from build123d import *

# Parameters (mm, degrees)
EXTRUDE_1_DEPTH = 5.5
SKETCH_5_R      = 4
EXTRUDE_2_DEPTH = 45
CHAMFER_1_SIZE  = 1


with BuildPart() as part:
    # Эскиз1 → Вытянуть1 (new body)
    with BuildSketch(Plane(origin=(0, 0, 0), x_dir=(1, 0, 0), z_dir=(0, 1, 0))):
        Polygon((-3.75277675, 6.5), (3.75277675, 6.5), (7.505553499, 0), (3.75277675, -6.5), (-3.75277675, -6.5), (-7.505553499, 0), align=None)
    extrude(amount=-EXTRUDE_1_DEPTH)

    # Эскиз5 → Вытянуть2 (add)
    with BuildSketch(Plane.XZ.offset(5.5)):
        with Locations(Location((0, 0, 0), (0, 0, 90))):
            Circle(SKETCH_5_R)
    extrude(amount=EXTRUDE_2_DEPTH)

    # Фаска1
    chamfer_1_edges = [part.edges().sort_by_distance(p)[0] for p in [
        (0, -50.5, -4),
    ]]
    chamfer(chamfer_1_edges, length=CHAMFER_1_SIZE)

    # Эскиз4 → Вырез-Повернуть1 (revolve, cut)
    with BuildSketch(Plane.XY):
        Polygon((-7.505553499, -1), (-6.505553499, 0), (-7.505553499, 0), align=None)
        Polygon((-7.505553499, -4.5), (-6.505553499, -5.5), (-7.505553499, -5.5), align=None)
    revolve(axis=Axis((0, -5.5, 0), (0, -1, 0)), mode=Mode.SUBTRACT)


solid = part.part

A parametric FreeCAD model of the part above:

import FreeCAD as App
import Part
import Sketcher
from FreeCAD import Vector
Q = App.Units.Quantity


def edges_at(feature, points):
    """Names of the edges that pass closest to the given points."""
    edges = feature.Shape.Edges
    near = lambda p: min(range(len(edges)), key=lambda i: edges[i].distToShape(Part.Vertex(*p))[0])
    return sorted({f"Edge{near(p) + 1}" for p in points})


def add_polygon(sketch, points):
    """Adds a closed chain of lines whose ends are joined by coincident constraints."""
    first, n = sketch.GeometryCount, len(points)
    for a, b in zip(points, points[1:] + points[:1]):
        sketch.addGeometry(Part.LineSegment(App.Vector(*a, 0), App.Vector(*b, 0)), False)
    for i in range(n):
        sketch.addConstraint(Sketcher.Constraint("Coincident", first + i, 2, first + (i + 1) % n, 1))

doc = App.newDocument("Part")
body = doc.addObject("PartDesign::Body", "Body")

# Sketch on XZ plane
sketch1 = body.newObject("Sketcher::SketchObject", "Sketch")
sketch1.AttachmentSupport = (doc.getObject("XZ_Plane"), [""])
sketch1.MapMode = "FlatFace"
add_polygon(sketch1, [(3.752777, -6.5), (-3.752777, -6.5), (-7.505553, 0), (-3.752777, 6.5), (3.752777, 6.5), (7.505553, 0)])  # lines 0-5
sketch1.addConstraint(Sketcher.Constraint("Horizontal", 0))
sketch1.addConstraint(Sketcher.Constraint("Horizontal", 3))
sketch1.addConstraint(Sketcher.Constraint("Symmetric", 0, 2, 3, 2, -1, 1))
sketch1.addConstraint(Sketcher.Constraint("Symmetric", 1, 2, 4, 2, -1, 1))
sketch1.addConstraint(Sketcher.Constraint("PointOnObject", 1, 2, -1))
sketch1.addConstraint(Sketcher.Constraint("Parallel", 2, 5))
sketch1.addConstraint(Sketcher.Constraint("Vertical", 0, 2, 2, 2))
sketch1.addConstraint(Sketcher.Constraint("Angle", 1, Q("120 deg")))
sketch1.addConstraint(Sketcher.Constraint("DistanceY", 0, 2, 2, 2, 13.0))
sketch1.addConstraint(Sketcher.Constraint("DistanceX", 0, 2, 0, 1, 7.505554))
pad1 = body.newObject("PartDesign::Pad", "Pad")
pad1.Profile = sketch1
pad1.Length = 5.5

# Sketch on XZ plane
sketch2 = body.newObject("Sketcher::SketchObject", "Sketch001")
sketch2.AttachmentSupport = (doc.getObject("XZ_Plane"), [""])
sketch2.MapMode = "FlatFace"
sketch2.AttachmentOffset = App.Placement(Vector(0, 0, 5.5), App.Rotation())
sketch2.addGeometry(Part.Circle(Vector(0, 0, 0), Vector(0, 0, 1), 4), False)
sketch2.addConstraint(Sketcher.Constraint("Coincident", 0, 3, -1, 1))
sketch2.addConstraint(Sketcher.Constraint("Diameter", 0, 8.0))
pad2 = body.newObject("PartDesign::Pad", "Pad001")
pad2.Profile = sketch2
pad2.Length = 45
doc.recompute()

chamfer = body.newObject("PartDesign::Chamfer", "Chamfer")
chamfer.Base = (pad2, edges_at(pad2, [(0, -50.5, -4)]))
chamfer.Size = 1

# Sketch on XY plane
sketch3 = body.newObject("Sketcher::SketchObject", "Sketch002")
sketch3.AttachmentSupport = (doc.getObject("XY_Plane"), [""])
sketch3.MapMode = "FlatFace"
add_polygon(sketch3, [(-7.505553, -1), (-6.505553, 0), (-7.505553, 0)])  # lines 0-2
add_polygon(sketch3, [(-6.505553, -5.5), (-7.505553, -4.5), (-7.505553, -5.5)])  # lines 3-5
sketch3.addConstraint(Sketcher.Constraint("Horizontal", 1))
sketch3.addConstraint(Sketcher.Constraint("Vertical", 2))
sketch3.addConstraint(Sketcher.Constraint("Vertical", 4))
sketch3.addConstraint(Sketcher.Constraint("Horizontal", 5))
sketch3.addConstraint(Sketcher.Constraint("PointOnObject", 0, 2, -1))
sketch3.addConstraint(Sketcher.Constraint("Perpendicular", 0, 3))
sketch3.addConstraint(Sketcher.Constraint("Vertical", 2, 2, 3, 2))
sketch3.addConstraint(Sketcher.Constraint("Vertical", 0, 2, 5, 2))
sketch3.addConstraint(Sketcher.Constraint("Equal", 5, 2))
sketch3.addConstraint(Sketcher.Constraint("DistanceX", 1, 2, 1, 1, 1.0))
sketch3.addConstraint(Sketcher.Constraint("DistanceY", 3, 2, -1, 1, 4.5))
sketch3.addConstraint(Sketcher.Constraint("DistanceX", 0, 2, -1, 1, 6.505553))
groove = body.newObject("PartDesign::Groove", "Groove")
groove.Profile = sketch3
groove.ReferenceAxis = (sketch3, ["V_Axis"])
groove.Angle = 360

doc.recompute()
